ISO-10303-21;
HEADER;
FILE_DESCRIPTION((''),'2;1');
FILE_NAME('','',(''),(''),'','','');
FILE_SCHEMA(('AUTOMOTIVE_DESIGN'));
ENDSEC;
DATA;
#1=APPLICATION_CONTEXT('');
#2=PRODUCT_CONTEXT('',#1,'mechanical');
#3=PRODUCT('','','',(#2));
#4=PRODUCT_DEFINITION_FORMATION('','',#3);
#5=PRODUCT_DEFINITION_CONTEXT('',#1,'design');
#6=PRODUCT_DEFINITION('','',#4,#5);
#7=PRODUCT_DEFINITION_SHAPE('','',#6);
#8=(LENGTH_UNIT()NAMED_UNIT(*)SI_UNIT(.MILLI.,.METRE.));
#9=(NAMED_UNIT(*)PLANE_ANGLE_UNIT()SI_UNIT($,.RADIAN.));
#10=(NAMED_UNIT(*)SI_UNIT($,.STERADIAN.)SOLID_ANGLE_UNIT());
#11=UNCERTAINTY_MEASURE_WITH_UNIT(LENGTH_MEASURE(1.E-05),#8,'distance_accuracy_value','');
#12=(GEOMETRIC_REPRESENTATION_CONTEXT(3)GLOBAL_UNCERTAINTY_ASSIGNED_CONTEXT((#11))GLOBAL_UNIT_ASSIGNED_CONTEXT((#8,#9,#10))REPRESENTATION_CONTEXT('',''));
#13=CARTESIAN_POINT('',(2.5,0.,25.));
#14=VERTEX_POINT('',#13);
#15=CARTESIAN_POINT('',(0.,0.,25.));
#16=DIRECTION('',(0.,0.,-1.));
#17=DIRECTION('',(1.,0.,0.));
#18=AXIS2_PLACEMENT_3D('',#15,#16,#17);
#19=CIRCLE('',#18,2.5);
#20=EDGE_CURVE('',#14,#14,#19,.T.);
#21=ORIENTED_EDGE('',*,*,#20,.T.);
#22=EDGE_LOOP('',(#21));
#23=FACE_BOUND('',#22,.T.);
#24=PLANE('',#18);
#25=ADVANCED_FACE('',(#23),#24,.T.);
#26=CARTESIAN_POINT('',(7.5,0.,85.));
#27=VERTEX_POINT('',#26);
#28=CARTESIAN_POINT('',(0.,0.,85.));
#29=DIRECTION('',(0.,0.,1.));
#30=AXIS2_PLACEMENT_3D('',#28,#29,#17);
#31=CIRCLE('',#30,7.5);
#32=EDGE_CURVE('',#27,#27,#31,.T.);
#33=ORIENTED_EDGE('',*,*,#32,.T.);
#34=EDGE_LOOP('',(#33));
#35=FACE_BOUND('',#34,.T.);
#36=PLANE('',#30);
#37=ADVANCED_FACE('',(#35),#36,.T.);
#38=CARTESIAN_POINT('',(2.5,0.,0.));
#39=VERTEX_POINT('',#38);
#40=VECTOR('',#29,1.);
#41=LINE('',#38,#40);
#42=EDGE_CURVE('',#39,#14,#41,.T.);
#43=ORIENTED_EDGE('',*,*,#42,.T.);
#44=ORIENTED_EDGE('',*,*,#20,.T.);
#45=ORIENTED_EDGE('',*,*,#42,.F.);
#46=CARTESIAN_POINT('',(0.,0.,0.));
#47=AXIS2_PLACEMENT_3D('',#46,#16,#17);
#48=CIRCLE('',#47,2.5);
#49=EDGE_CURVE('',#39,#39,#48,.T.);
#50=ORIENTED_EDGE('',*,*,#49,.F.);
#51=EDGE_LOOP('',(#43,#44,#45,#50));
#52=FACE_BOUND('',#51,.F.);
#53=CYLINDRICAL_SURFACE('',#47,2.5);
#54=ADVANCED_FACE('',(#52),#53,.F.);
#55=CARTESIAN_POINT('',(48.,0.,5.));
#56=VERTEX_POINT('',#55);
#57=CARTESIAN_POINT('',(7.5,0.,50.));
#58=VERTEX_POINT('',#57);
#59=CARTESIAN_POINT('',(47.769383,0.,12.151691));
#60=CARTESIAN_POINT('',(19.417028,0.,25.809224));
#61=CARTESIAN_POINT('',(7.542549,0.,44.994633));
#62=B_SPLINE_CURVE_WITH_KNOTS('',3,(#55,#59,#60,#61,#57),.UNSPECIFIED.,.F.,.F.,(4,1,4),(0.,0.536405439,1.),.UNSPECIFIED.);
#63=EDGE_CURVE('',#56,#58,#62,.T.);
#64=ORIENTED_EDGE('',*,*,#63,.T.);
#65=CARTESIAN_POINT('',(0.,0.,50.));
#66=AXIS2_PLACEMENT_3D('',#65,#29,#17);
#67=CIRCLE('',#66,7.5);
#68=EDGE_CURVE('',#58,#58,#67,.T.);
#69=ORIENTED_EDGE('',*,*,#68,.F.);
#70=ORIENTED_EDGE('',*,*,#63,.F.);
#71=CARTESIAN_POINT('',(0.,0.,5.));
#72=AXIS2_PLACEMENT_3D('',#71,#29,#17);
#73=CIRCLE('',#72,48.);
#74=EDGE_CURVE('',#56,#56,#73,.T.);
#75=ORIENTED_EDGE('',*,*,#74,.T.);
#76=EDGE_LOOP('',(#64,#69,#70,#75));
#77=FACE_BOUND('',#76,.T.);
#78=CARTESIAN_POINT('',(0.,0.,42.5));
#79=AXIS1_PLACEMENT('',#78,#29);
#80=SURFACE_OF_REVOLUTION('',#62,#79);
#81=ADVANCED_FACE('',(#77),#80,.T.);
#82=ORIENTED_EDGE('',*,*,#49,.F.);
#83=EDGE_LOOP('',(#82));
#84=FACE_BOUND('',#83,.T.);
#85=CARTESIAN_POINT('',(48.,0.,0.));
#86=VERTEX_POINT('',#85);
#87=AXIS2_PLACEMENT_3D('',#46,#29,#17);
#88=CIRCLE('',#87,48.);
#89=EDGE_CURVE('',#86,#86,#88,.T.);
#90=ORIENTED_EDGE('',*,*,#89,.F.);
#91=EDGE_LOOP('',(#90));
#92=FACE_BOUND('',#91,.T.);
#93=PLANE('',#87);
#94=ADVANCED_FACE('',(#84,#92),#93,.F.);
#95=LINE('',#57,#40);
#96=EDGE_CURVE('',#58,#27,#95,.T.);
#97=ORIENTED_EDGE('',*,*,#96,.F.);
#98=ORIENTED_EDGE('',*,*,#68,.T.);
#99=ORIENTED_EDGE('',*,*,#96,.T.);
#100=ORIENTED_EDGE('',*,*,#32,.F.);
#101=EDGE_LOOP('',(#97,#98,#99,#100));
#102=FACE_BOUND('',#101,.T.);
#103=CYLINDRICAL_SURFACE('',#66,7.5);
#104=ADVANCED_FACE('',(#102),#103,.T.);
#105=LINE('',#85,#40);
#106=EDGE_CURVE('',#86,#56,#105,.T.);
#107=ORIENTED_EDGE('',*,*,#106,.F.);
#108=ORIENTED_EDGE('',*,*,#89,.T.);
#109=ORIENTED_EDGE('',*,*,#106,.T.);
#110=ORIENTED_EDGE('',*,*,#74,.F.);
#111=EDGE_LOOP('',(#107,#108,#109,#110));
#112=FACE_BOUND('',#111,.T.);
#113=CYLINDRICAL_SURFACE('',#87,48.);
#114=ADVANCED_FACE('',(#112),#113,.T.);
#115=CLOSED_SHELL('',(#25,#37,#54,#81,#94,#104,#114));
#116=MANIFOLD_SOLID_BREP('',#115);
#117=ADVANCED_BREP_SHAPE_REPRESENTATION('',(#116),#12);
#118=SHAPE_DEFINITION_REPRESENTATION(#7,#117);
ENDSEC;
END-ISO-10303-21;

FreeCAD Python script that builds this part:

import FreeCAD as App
import Part
import Sketcher

V = App.Vector
Q = App.Units.Quantity

doc = App.newDocument("Part")
body = doc.addObject("PartDesign::Body", "Body")

# Sketch on XZ plane
sketch1 = body.newObject("Sketcher::SketchObject", "Sketch")
sketch1.AttachmentSupport = (doc.getObject("XZ_Plane"), [""])
sketch1.MapMode = "FlatFace"
sketch1.addGeometry(Part.LineSegment(V(0, 85, 0), V(0, 0, 0)), False)
sketch1.addGeometry(Part.LineSegment(V(0, 0, 0), V(48, 0, 0)), False)
sketch1.addGeometry(Part.LineSegment(V(48, 0, 0), V(48, 5, 0)), False)
sketch1.addGeometry(Part.BSplineCurve([V(48, 5, 0), V(47.769383, 12.151691, 0), V(19.417028, 25.809224, 0), V(7.542549, 44.994633, 0), V(7.5, 50, 0)], [4, 1, 4], [0, 0.536405439, 1], False, 3, [1, 1, 1, 1, 1], False), False)
sketch1.addGeometry(Part.LineSegment(V(7.5, 50, 0), V(7.5, 85, 0)), False)
sketch1.addGeometry(Part.LineSegment(V(7.5, 85, 0), V(0, 85, 0)), False)
sketch1.addConstraint(Sketcher.Constraint("Block", 3))
sketch1.addConstraint(Sketcher.Constraint("Coincident", 0, 2, 1, 1))
sketch1.addConstraint(Sketcher.Constraint("Coincident", 1, 2, 2, 1))
sketch1.addConstraint(Sketcher.Constraint("Coincident", 2, 2, 3, 1))
sketch1.addConstraint(Sketcher.Constraint("Coincident", 3, 2, 4, 1))
sketch1.addConstraint(Sketcher.Constraint("Coincident", 4, 2, 5, 1))
sketch1.addConstraint(Sketcher.Constraint("Coincident", 5, 2, 0, 1))
sketch1.addConstraint(Sketcher.Constraint("Vertical", 0))
sketch1.addConstraint(Sketcher.Constraint("Horizontal", 1))
sketch1.addConstraint(Sketcher.Constraint("Vertical", 2))
sketch1.addConstraint(Sketcher.Constraint("Vertical", 4))
sketch1.addConstraint(Sketcher.Constraint("Horizontal", 5))
sketch1.addConstraint(Sketcher.Constraint("Coincident", 0, 2, -1, 1))
sketch1.addConstraint(Sketcher.Constraint("DistanceY", 0, 2, 0, 1, Q("85 mm")))
revolution = body.newObject("PartDesign::Revolution", "Revolution")
revolution.Profile = sketch1
revolution.ReferenceAxis = (sketch1, ["V_Axis"])
revolution.Angle = 360

# Sketch on XY plane
sketch2 = body.newObject("Sketcher::SketchObject", "Sketch001")
sketch2.AttachmentSupport = (doc.getObject("XY_Plane"), [""])
sketch2.MapMode = "FlatFace"
sketch2.addGeometry(Part.Circle(V(0, 0, 0), V(0, 0, 1), 2.5), False)
sketch2.addConstraint(Sketcher.Constraint("Coincident", 0, 3, -1, 1))
sketch2.addConstraint(Sketcher.Constraint("Diameter", 0, Q("5 mm")))
pocket1 = body.newObject("PartDesign::Pocket", "Pocket")
pocket1.Profile = sketch2
pocket1.Length = 25
pocket1.Reversed = True

doc.recompute()
